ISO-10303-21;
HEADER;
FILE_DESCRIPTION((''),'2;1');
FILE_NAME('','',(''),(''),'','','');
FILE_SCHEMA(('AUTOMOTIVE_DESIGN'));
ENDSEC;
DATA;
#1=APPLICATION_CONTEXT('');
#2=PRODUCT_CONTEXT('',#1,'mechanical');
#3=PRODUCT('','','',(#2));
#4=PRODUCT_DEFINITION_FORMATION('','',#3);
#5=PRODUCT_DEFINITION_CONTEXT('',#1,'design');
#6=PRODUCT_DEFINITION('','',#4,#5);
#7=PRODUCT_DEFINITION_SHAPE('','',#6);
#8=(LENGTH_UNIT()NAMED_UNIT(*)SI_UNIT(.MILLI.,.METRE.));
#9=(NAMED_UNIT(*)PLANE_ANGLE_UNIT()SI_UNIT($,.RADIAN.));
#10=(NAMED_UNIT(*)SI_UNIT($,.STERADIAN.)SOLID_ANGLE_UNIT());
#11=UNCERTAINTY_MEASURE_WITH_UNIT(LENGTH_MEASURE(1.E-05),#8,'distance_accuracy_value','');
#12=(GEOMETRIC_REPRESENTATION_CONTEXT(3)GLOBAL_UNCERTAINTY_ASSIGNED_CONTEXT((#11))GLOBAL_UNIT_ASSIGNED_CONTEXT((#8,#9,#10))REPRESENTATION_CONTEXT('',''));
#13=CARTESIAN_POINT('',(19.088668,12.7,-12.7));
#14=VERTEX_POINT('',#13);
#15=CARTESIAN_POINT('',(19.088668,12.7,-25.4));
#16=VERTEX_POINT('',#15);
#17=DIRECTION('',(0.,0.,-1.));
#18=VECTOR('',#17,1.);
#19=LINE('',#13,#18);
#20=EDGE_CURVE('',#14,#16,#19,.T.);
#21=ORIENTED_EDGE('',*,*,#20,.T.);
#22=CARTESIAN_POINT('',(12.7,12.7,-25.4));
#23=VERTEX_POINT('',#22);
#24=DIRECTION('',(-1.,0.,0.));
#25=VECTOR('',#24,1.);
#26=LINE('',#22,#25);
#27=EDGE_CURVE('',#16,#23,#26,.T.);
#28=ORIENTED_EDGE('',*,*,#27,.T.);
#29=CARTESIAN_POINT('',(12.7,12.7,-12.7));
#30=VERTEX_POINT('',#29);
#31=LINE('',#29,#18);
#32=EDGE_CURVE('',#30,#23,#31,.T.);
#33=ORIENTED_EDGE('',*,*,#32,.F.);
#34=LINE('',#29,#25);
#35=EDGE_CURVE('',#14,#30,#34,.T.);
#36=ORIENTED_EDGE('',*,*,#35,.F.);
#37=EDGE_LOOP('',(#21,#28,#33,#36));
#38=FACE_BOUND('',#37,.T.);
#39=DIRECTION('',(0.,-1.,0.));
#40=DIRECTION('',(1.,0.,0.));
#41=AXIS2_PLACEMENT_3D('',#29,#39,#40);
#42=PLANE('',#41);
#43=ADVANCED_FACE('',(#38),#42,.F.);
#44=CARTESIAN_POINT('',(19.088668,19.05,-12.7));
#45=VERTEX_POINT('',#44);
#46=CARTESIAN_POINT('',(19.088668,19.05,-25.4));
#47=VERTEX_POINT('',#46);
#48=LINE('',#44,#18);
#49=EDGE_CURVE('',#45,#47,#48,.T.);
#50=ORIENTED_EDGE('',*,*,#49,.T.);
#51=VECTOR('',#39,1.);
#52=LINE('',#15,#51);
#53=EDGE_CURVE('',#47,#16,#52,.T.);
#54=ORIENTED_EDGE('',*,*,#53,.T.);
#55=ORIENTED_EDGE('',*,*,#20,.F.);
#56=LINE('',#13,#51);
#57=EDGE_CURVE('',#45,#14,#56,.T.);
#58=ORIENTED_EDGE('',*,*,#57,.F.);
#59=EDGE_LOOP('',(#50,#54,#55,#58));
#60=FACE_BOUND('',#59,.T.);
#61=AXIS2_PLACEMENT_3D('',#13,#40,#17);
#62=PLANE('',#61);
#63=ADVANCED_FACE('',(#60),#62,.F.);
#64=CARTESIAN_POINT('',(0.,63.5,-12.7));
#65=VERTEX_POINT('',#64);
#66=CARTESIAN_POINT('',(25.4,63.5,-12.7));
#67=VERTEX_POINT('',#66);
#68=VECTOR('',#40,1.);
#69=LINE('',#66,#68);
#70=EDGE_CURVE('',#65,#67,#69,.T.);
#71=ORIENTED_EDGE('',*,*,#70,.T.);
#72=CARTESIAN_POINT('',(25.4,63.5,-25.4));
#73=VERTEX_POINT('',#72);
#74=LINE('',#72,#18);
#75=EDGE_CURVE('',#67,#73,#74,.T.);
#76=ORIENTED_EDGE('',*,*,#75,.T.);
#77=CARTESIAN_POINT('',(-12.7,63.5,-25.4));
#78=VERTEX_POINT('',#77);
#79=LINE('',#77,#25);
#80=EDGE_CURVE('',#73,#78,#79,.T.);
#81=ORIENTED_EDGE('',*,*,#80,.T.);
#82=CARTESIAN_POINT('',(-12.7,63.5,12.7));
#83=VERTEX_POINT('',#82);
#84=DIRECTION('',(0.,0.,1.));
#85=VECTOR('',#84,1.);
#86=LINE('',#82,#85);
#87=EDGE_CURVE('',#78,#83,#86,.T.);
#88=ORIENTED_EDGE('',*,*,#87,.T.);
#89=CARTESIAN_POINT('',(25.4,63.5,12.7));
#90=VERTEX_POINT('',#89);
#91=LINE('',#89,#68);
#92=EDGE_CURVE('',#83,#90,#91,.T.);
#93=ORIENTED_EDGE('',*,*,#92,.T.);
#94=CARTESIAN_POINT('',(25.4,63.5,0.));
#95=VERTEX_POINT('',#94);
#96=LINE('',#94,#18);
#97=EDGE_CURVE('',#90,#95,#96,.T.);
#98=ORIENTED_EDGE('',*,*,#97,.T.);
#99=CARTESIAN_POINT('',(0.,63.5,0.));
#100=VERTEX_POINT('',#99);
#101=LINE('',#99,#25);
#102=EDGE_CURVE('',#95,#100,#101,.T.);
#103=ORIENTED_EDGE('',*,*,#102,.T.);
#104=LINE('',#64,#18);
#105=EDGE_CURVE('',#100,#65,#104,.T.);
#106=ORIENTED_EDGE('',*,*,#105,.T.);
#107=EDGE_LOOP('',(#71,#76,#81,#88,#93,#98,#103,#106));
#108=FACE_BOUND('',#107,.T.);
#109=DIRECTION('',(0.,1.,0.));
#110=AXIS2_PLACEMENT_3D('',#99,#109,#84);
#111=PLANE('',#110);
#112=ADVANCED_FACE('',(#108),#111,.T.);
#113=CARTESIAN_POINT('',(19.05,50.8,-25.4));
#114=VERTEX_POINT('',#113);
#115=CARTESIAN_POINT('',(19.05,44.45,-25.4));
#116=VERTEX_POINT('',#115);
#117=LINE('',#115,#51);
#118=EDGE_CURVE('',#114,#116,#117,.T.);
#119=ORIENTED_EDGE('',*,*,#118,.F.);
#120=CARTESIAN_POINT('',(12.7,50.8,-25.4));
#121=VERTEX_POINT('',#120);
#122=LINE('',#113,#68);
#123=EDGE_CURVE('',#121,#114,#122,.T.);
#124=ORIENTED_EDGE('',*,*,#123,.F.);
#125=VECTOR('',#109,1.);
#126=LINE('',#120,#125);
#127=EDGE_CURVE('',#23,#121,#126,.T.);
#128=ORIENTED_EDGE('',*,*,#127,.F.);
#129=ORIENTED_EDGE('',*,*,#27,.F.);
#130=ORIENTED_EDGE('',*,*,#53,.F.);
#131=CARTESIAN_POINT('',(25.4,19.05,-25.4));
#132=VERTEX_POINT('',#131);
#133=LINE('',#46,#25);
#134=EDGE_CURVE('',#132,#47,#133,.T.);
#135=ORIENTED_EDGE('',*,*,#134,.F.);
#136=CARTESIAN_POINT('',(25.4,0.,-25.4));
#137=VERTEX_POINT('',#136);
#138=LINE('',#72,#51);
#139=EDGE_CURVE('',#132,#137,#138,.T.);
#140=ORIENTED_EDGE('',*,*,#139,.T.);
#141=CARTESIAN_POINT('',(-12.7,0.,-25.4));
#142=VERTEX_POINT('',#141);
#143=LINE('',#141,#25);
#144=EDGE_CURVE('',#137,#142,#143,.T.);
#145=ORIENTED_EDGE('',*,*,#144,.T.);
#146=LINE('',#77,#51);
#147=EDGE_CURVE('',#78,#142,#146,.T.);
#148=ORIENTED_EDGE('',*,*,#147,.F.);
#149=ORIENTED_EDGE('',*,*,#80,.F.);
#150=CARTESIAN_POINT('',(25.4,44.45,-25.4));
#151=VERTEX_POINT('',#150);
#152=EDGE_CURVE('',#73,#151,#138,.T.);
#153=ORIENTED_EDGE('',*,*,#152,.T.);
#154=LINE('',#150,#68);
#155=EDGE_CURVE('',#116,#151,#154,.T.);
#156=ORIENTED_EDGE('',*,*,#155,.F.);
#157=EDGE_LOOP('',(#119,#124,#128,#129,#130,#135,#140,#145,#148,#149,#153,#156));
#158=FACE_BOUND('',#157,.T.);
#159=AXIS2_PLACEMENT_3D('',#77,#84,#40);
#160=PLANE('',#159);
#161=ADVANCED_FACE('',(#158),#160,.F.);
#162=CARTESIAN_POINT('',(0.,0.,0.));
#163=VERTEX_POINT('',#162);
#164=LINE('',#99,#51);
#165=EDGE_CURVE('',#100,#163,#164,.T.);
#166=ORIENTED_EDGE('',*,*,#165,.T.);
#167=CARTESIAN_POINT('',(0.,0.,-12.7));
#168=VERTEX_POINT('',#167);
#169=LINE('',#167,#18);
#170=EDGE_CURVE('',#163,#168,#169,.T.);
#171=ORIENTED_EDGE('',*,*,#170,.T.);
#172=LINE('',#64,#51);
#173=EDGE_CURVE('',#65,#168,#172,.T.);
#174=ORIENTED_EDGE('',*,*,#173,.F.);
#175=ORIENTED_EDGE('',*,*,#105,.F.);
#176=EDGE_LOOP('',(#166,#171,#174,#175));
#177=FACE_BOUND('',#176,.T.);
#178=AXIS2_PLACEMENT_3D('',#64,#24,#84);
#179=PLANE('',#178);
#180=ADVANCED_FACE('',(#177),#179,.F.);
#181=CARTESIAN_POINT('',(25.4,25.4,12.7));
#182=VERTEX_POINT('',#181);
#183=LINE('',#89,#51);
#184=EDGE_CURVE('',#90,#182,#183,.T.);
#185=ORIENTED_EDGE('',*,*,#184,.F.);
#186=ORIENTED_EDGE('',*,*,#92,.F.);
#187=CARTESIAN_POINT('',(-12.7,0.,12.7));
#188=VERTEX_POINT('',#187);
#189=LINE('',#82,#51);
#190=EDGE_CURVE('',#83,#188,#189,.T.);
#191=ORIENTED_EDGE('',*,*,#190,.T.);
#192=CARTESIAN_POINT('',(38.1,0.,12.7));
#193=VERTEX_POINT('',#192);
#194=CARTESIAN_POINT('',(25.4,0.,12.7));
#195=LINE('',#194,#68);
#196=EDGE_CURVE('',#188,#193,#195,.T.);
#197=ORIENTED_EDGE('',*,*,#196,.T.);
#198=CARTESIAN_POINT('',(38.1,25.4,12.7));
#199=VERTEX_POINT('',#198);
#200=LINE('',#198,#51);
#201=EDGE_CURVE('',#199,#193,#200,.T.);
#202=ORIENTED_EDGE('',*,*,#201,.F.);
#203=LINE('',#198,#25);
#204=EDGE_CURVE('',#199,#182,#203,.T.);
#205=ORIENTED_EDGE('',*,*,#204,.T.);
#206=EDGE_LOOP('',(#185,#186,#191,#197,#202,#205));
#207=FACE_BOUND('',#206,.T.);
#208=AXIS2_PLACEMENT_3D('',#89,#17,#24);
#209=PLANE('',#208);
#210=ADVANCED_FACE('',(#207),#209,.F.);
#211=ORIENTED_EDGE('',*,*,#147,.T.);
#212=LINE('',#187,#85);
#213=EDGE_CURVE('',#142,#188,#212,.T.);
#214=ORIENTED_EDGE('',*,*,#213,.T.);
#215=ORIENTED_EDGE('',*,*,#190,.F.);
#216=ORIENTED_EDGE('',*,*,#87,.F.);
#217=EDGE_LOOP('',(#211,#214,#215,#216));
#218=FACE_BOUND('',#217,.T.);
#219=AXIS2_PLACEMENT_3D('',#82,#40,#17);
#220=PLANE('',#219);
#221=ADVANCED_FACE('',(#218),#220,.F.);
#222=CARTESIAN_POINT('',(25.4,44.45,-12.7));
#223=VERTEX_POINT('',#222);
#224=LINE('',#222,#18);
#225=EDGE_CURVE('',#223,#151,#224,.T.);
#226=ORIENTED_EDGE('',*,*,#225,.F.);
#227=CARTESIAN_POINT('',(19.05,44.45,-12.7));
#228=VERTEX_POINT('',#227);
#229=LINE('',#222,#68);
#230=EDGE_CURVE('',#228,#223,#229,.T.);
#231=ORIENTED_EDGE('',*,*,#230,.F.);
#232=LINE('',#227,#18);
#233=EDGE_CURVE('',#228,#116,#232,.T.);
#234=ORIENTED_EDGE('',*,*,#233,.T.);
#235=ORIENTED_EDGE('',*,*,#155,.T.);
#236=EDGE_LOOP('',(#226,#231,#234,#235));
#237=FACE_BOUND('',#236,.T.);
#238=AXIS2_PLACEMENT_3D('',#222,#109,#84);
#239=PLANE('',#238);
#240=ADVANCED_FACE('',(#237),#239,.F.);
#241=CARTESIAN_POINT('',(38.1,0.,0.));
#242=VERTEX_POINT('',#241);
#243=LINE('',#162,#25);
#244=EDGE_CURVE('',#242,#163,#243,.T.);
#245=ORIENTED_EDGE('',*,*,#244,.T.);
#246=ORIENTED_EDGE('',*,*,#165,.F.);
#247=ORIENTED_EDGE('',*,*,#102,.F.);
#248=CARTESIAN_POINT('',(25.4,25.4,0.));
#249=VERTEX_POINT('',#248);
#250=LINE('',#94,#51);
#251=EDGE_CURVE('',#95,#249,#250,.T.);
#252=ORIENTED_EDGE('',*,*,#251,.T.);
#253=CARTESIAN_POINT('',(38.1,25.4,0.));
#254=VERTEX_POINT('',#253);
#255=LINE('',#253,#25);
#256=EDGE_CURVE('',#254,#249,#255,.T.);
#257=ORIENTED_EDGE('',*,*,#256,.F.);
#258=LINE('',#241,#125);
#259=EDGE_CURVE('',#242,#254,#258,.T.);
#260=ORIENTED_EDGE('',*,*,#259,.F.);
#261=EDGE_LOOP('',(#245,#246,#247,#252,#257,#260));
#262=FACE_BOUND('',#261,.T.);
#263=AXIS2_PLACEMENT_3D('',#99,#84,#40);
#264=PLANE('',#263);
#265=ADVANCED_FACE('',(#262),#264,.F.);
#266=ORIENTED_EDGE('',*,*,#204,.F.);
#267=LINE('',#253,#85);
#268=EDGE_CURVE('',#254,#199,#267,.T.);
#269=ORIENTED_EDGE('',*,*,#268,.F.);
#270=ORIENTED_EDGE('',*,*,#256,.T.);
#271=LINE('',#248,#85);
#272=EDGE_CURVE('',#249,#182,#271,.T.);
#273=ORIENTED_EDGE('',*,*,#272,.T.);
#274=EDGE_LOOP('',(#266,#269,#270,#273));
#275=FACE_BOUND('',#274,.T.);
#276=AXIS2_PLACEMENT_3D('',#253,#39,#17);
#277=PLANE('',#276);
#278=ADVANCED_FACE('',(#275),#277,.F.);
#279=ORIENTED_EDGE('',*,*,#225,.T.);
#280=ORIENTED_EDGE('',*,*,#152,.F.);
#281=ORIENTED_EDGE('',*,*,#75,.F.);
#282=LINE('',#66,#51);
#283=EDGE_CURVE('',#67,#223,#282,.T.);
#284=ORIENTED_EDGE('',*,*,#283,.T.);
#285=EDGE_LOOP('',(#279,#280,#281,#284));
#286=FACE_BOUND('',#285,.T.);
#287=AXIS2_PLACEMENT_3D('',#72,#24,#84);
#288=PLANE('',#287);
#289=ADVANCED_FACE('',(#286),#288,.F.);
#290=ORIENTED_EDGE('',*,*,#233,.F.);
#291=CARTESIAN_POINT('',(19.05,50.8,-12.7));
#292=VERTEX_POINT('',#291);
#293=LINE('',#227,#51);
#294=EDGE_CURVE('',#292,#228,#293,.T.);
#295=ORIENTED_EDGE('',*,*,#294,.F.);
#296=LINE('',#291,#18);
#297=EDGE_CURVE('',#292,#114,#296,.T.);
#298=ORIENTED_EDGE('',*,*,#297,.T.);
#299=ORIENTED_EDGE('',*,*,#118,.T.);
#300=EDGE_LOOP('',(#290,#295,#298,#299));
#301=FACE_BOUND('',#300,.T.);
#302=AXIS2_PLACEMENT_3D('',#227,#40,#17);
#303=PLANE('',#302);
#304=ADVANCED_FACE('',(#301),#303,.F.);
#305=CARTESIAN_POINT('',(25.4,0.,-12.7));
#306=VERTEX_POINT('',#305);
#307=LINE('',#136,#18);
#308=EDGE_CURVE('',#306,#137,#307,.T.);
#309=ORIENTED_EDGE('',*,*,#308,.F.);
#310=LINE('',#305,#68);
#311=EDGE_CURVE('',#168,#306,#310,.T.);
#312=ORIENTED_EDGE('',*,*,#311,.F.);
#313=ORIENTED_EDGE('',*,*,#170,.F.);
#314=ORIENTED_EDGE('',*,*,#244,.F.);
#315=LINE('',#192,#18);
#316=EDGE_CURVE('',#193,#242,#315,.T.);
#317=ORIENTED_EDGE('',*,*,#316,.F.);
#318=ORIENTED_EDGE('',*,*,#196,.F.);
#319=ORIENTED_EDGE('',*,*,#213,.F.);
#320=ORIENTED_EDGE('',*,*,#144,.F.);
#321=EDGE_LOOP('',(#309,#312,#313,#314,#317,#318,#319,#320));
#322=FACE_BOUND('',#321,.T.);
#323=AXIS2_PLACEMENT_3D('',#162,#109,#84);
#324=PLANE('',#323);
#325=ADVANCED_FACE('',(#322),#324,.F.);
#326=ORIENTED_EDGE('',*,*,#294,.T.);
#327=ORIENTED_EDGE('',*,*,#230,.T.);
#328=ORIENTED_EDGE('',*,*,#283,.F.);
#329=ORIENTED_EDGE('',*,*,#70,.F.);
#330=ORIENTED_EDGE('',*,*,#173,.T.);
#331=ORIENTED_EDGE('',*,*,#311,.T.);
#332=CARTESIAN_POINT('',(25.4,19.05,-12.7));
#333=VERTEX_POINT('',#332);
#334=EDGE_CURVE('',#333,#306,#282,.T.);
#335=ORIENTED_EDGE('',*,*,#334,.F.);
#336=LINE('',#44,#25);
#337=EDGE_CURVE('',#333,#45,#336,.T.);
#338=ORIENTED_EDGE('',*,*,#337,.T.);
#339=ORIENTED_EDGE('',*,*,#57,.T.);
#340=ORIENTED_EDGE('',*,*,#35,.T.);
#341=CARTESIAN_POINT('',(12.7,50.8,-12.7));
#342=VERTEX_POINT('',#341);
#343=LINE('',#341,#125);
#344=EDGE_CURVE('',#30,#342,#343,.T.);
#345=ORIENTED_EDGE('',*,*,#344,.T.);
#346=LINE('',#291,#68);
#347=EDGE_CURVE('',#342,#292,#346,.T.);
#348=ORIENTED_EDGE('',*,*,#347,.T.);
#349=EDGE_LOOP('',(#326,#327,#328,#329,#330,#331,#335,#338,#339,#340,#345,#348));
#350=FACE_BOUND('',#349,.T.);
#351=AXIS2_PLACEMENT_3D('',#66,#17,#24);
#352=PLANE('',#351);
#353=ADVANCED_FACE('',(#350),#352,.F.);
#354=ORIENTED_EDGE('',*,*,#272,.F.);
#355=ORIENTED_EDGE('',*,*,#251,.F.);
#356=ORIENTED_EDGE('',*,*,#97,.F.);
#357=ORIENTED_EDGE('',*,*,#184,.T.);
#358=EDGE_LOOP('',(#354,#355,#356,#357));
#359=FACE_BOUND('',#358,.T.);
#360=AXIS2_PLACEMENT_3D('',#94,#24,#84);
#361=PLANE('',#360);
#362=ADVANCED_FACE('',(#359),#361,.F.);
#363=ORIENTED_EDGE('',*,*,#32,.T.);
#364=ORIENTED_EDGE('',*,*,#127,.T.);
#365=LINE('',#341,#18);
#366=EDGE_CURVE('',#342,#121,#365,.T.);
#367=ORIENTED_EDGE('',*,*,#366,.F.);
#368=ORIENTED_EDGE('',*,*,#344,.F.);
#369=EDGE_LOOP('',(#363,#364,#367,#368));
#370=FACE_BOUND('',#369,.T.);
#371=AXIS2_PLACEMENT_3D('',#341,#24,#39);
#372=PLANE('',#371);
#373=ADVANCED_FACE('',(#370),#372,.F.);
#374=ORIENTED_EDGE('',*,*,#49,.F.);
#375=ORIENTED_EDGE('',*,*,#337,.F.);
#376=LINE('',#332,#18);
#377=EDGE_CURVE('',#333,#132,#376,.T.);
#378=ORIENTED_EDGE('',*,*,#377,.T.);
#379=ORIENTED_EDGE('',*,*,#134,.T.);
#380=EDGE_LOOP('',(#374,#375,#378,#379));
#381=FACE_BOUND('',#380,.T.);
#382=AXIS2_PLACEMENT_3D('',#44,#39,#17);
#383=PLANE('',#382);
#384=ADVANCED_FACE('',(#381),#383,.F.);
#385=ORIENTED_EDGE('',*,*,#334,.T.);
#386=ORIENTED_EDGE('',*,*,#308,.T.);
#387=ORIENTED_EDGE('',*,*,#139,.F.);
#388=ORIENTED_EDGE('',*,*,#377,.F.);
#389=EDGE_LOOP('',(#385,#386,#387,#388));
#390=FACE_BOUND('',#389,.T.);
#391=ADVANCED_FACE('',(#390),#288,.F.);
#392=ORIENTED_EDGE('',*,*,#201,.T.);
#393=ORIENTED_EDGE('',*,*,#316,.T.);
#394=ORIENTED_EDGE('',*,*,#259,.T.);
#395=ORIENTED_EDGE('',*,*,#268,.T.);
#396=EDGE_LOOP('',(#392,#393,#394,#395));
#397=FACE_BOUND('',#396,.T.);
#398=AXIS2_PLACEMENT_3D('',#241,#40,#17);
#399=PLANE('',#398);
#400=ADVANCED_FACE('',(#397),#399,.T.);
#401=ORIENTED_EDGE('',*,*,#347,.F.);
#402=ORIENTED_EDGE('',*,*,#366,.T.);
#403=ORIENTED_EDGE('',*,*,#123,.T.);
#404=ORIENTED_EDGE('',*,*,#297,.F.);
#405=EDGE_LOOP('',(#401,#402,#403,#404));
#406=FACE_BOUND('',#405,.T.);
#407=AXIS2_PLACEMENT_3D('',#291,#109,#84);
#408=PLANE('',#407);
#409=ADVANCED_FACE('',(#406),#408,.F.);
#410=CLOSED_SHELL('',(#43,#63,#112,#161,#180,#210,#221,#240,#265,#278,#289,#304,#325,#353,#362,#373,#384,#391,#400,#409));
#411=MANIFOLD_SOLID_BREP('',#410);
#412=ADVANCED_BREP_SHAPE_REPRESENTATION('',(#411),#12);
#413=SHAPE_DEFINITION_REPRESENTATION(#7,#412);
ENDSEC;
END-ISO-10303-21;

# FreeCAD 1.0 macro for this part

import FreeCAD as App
import Part
import Sketcher

V = App.Vector
Q = App.Units.Quantity

doc = App.newDocument("Part")
params = doc.addObject("Spreadsheet::Sheet", "Params")
for row, (alias, value) in enumerate([
    ("sketch1_width", "1 in"),
    ("sketch1_width2", "1.5 in"),
    ("pad1_length", "2.5 in"),
    ("sketch2_height", "1 in"),
    ("sketch2_height2", "1.5 in"),
    ("pocket1_length", "0.5 in"),
    ("sketch3_width", "1 in"),
    ("sketch3_height", "0.5 in"),
    ("pad2_length", "0.5 in"),
], start=1):
    params.set(f"A{row}", alias)
    params.set(f"B{row}", "=" + value)
    params.setAlias(f"B{row}", alias)

body = doc.addObject("PartDesign::Body", "Body")

sketch1 = body.newObject("Sketcher::SketchObject", "Sketch")
sketch1.AttachmentSupport = (doc.getObject("XZ_Plane"), [""])
sketch1.MapMode = "FlatFace"
sketch1.addGeometry([
    Part.LineSegment(V(25, 0, 0), V(0, 0, 0)),
    Part.LineSegment(V(0, 0, 0), V(0, -13, 0)),
    Part.LineSegment(V(0, -13, 0), V(25, -13, 0)),
    Part.LineSegment(V(25, -13, 0), V(25, -25, 0)),
    Part.LineSegment(V(25, -25, 0), V(-13, -25, 0)),
    Part.LineSegment(V(-13, -25, 0), V(-13, 13, 0)),
    Part.LineSegment(V(-13, 13, 0), V(25, 13, 0)),
    Part.LineSegment(V(25, 13, 0), V(25, 0, 0)),
], False)
sketch1.addConstraint([
    Sketcher.Constraint("Coincident", 0, 2, 1, 1),
    Sketcher.Constraint("Coincident", 1, 2, 2, 1),
    Sketcher.Constraint("Coincident", 2, 2, 3, 1),
    Sketcher.Constraint("Coincident", 3, 2, 4, 1),
    Sketcher.Constraint("Coincident", 4, 2, 5, 1),
    Sketcher.Constraint("Coincident", 5, 2, 6, 1),
    Sketcher.Constraint("Coincident", 6, 2, 7, 1),
    Sketcher.Constraint("Coincident", 7, 2, 0, 1),
    Sketcher.Constraint("Horizontal", 0),
    Sketcher.Constraint("Vertical", 1),
    Sketcher.Constraint("Horizontal", 2),
    Sketcher.Constraint("Vertical", 3),
    Sketcher.Constraint("Horizontal", 4),
    Sketcher.Constraint("Vertical", 5),
    Sketcher.Constraint("Horizontal", 6),
    Sketcher.Constraint("Vertical", 7),
    Sketcher.Constraint("Coincident", 0, 2, -1, 1),
    Sketcher.Constraint("Symmetric", 2, 2, 6, 2, -1),
    Sketcher.Constraint("Equal", 1, 3),
    Sketcher.Constraint("Equal", 6, 5),
    Sketcher.Constraint("DistanceX", 0, 2, 0, 1, Q("1 in")),
    Sketcher.Constraint("DistanceX", 4, 2, 4, 1, Q("1.5 in")),
])
sketch1.setExpression("Constraints[20]", "Params.sketch1_width")
sketch1.setExpression("Constraints[21]", "Params.sketch1_width2")
pad1 = body.newObject("PartDesign::Pad", "Pad")
pad1.Profile = sketch1
pad1.setExpression("Length", "Params.pad1_length")
pad1.Reversed = True

sketch2 = body.newObject("Sketcher::SketchObject", "Sketch001")
sketch2.AttachmentSupport = (doc.getObject("XY_Plane"), [""])
sketch2.MapMode = "FlatFace"
sketch2.AttachmentOffset = App.Placement(V(0, 0, -1 * 25.4), App.Rotation())
sketch2.addGeometry([
    Part.LineSegment(V(19, 44, 0), V(25, 44, 0)),
    Part.LineSegment(V(25, 44, 0), V(25, 19, 0)),
    Part.LineSegment(V(25, 19, 0), V(19, 19, 0)),
    Part.LineSegment(V(19, 19, 0), V(19, 13, 0)),
    Part.LineSegment(V(19, 13, 0), V(13, 13, 0)),
    Part.LineSegment(V(13, 13, 0), V(13, 51, 0)),
    Part.LineSegment(V(13, 51, 0), V(19, 51, 0)),
    Part.LineSegment(V(19, 51, 0), V(19, 44, 0)),
], False)
sketch2.addConstraint([
    Sketcher.Constraint("Coincident", 0, 2, 1, 1),
    Sketcher.Constraint("Coincident", 1, 2, 2, 1),
    Sketcher.Constraint("Coincident", 2, 2, 3, 1),
    Sketcher.Constraint("Coincident", 3, 2, 4, 1),
    Sketcher.Constraint("Coincident", 4, 2, 5, 1),
    Sketcher.Constraint("Coincident", 5, 2, 6, 1),
    Sketcher.Constraint("Coincident", 6, 2, 7, 1),
    Sketcher.Constraint("Coincident", 7, 2, 0, 1),
    Sketcher.Constraint("Horizontal", 0),
    Sketcher.Constraint("Vertical", 1),
    Sketcher.Constraint("Horizontal", 2),
    Sketcher.Constraint("Vertical", 3),
    Sketcher.Constraint("Horizontal", 4),
    Sketcher.Constraint("Vertical", 5),
    Sketcher.Constraint("Horizontal", 6),
    Sketcher.Constraint("Vertical", 7),
    Sketcher.Constraint("Equal", 0, 6),
    Sketcher.Constraint("Equal", 6, 3),
    Sketcher.Constraint("Equal", 3, 7),
    Sketcher.Constraint("DistanceY", 1, 2, 1, 1, Q("1 in")),
    Sketcher.Constraint("DistanceY", 5, 1, 5, 2, Q("1.5 in")),
    Sketcher.Constraint("DistanceX", -1, 1, 0, 2, Q("1 in")),
    Sketcher.Constraint("DistanceY", -1, 1, 5, 2, Q("2 in")),
    Sketcher.Constraint("DistanceX", 2, 2, 2, 1, Q("6.311332 mm")),
])
sketch2.setExpression("Constraints[19]", "Params.sketch2_height")
sketch2.setExpression("Constraints[20]", "Params.sketch2_height2")
pocket1 = body.newObject("PartDesign::Pocket", "Pocket")
pocket1.Profile = sketch2
pocket1.setExpression("Length", "Params.pocket1_length")
pocket1.Reversed = True

sketch3 = body.newObject("Sketcher::SketchObject", "Sketch002")
sketch3.AttachmentSupport = (doc.getObject("YZ_Plane"), [""])
sketch3.MapMode = "FlatFace"
sketch3.AttachmentOffset = App.Placement(V(0, 0, 1 * 25.4), App.Rotation())
sketch3.addGeometry([
    Part.LineSegment(V(25, 13, 0), V(0, 13, 0)),
    Part.LineSegment(V(0, 13, 0), V(0, 0, 0)),
    Part.LineSegment(V(0, 0, 0), V(25, 0, 0)),
    Part.LineSegment(V(25, 0, 0), V(25, 13, 0)),
], False)
sketch3.addConstraint([
    Sketcher.Constraint("Coincident", 0, 2, 1, 1),
    Sketcher.Constraint("Coincident", 1, 2, 2, 1),
    Sketcher.Constraint("Coincident", 2, 2, 3, 1),
    Sketcher.Constraint("Coincident", 3, 2, 0, 1),
    Sketcher.Constraint("Horizontal", 0),
    Sketcher.Constraint("Vertical", 1),
    Sketcher.Constraint("Horizontal", 2),
    Sketcher.Constraint("Vertical", 3),
    Sketcher.Constraint("Coincident", 1, 2, -1, 1),
    Sketcher.Constraint("DistanceX", 0, 2, 0, 1, Q("1 in")),
    Sketcher.Constraint("DistanceY", 1, 2, 1, 1, Q("0.5 in")),
])
sketch3.setExpression("Constraints[9]", "Params.sketch3_width")
sketch3.setExpression("Constraints[10]", "Params.sketch3_height")
pad2 = body.newObject("PartDesign::Pad", "Pad001")
pad2.Profile = sketch3
pad2.setExpression("Length", "Params.pad2_length")

doc.recompute()
